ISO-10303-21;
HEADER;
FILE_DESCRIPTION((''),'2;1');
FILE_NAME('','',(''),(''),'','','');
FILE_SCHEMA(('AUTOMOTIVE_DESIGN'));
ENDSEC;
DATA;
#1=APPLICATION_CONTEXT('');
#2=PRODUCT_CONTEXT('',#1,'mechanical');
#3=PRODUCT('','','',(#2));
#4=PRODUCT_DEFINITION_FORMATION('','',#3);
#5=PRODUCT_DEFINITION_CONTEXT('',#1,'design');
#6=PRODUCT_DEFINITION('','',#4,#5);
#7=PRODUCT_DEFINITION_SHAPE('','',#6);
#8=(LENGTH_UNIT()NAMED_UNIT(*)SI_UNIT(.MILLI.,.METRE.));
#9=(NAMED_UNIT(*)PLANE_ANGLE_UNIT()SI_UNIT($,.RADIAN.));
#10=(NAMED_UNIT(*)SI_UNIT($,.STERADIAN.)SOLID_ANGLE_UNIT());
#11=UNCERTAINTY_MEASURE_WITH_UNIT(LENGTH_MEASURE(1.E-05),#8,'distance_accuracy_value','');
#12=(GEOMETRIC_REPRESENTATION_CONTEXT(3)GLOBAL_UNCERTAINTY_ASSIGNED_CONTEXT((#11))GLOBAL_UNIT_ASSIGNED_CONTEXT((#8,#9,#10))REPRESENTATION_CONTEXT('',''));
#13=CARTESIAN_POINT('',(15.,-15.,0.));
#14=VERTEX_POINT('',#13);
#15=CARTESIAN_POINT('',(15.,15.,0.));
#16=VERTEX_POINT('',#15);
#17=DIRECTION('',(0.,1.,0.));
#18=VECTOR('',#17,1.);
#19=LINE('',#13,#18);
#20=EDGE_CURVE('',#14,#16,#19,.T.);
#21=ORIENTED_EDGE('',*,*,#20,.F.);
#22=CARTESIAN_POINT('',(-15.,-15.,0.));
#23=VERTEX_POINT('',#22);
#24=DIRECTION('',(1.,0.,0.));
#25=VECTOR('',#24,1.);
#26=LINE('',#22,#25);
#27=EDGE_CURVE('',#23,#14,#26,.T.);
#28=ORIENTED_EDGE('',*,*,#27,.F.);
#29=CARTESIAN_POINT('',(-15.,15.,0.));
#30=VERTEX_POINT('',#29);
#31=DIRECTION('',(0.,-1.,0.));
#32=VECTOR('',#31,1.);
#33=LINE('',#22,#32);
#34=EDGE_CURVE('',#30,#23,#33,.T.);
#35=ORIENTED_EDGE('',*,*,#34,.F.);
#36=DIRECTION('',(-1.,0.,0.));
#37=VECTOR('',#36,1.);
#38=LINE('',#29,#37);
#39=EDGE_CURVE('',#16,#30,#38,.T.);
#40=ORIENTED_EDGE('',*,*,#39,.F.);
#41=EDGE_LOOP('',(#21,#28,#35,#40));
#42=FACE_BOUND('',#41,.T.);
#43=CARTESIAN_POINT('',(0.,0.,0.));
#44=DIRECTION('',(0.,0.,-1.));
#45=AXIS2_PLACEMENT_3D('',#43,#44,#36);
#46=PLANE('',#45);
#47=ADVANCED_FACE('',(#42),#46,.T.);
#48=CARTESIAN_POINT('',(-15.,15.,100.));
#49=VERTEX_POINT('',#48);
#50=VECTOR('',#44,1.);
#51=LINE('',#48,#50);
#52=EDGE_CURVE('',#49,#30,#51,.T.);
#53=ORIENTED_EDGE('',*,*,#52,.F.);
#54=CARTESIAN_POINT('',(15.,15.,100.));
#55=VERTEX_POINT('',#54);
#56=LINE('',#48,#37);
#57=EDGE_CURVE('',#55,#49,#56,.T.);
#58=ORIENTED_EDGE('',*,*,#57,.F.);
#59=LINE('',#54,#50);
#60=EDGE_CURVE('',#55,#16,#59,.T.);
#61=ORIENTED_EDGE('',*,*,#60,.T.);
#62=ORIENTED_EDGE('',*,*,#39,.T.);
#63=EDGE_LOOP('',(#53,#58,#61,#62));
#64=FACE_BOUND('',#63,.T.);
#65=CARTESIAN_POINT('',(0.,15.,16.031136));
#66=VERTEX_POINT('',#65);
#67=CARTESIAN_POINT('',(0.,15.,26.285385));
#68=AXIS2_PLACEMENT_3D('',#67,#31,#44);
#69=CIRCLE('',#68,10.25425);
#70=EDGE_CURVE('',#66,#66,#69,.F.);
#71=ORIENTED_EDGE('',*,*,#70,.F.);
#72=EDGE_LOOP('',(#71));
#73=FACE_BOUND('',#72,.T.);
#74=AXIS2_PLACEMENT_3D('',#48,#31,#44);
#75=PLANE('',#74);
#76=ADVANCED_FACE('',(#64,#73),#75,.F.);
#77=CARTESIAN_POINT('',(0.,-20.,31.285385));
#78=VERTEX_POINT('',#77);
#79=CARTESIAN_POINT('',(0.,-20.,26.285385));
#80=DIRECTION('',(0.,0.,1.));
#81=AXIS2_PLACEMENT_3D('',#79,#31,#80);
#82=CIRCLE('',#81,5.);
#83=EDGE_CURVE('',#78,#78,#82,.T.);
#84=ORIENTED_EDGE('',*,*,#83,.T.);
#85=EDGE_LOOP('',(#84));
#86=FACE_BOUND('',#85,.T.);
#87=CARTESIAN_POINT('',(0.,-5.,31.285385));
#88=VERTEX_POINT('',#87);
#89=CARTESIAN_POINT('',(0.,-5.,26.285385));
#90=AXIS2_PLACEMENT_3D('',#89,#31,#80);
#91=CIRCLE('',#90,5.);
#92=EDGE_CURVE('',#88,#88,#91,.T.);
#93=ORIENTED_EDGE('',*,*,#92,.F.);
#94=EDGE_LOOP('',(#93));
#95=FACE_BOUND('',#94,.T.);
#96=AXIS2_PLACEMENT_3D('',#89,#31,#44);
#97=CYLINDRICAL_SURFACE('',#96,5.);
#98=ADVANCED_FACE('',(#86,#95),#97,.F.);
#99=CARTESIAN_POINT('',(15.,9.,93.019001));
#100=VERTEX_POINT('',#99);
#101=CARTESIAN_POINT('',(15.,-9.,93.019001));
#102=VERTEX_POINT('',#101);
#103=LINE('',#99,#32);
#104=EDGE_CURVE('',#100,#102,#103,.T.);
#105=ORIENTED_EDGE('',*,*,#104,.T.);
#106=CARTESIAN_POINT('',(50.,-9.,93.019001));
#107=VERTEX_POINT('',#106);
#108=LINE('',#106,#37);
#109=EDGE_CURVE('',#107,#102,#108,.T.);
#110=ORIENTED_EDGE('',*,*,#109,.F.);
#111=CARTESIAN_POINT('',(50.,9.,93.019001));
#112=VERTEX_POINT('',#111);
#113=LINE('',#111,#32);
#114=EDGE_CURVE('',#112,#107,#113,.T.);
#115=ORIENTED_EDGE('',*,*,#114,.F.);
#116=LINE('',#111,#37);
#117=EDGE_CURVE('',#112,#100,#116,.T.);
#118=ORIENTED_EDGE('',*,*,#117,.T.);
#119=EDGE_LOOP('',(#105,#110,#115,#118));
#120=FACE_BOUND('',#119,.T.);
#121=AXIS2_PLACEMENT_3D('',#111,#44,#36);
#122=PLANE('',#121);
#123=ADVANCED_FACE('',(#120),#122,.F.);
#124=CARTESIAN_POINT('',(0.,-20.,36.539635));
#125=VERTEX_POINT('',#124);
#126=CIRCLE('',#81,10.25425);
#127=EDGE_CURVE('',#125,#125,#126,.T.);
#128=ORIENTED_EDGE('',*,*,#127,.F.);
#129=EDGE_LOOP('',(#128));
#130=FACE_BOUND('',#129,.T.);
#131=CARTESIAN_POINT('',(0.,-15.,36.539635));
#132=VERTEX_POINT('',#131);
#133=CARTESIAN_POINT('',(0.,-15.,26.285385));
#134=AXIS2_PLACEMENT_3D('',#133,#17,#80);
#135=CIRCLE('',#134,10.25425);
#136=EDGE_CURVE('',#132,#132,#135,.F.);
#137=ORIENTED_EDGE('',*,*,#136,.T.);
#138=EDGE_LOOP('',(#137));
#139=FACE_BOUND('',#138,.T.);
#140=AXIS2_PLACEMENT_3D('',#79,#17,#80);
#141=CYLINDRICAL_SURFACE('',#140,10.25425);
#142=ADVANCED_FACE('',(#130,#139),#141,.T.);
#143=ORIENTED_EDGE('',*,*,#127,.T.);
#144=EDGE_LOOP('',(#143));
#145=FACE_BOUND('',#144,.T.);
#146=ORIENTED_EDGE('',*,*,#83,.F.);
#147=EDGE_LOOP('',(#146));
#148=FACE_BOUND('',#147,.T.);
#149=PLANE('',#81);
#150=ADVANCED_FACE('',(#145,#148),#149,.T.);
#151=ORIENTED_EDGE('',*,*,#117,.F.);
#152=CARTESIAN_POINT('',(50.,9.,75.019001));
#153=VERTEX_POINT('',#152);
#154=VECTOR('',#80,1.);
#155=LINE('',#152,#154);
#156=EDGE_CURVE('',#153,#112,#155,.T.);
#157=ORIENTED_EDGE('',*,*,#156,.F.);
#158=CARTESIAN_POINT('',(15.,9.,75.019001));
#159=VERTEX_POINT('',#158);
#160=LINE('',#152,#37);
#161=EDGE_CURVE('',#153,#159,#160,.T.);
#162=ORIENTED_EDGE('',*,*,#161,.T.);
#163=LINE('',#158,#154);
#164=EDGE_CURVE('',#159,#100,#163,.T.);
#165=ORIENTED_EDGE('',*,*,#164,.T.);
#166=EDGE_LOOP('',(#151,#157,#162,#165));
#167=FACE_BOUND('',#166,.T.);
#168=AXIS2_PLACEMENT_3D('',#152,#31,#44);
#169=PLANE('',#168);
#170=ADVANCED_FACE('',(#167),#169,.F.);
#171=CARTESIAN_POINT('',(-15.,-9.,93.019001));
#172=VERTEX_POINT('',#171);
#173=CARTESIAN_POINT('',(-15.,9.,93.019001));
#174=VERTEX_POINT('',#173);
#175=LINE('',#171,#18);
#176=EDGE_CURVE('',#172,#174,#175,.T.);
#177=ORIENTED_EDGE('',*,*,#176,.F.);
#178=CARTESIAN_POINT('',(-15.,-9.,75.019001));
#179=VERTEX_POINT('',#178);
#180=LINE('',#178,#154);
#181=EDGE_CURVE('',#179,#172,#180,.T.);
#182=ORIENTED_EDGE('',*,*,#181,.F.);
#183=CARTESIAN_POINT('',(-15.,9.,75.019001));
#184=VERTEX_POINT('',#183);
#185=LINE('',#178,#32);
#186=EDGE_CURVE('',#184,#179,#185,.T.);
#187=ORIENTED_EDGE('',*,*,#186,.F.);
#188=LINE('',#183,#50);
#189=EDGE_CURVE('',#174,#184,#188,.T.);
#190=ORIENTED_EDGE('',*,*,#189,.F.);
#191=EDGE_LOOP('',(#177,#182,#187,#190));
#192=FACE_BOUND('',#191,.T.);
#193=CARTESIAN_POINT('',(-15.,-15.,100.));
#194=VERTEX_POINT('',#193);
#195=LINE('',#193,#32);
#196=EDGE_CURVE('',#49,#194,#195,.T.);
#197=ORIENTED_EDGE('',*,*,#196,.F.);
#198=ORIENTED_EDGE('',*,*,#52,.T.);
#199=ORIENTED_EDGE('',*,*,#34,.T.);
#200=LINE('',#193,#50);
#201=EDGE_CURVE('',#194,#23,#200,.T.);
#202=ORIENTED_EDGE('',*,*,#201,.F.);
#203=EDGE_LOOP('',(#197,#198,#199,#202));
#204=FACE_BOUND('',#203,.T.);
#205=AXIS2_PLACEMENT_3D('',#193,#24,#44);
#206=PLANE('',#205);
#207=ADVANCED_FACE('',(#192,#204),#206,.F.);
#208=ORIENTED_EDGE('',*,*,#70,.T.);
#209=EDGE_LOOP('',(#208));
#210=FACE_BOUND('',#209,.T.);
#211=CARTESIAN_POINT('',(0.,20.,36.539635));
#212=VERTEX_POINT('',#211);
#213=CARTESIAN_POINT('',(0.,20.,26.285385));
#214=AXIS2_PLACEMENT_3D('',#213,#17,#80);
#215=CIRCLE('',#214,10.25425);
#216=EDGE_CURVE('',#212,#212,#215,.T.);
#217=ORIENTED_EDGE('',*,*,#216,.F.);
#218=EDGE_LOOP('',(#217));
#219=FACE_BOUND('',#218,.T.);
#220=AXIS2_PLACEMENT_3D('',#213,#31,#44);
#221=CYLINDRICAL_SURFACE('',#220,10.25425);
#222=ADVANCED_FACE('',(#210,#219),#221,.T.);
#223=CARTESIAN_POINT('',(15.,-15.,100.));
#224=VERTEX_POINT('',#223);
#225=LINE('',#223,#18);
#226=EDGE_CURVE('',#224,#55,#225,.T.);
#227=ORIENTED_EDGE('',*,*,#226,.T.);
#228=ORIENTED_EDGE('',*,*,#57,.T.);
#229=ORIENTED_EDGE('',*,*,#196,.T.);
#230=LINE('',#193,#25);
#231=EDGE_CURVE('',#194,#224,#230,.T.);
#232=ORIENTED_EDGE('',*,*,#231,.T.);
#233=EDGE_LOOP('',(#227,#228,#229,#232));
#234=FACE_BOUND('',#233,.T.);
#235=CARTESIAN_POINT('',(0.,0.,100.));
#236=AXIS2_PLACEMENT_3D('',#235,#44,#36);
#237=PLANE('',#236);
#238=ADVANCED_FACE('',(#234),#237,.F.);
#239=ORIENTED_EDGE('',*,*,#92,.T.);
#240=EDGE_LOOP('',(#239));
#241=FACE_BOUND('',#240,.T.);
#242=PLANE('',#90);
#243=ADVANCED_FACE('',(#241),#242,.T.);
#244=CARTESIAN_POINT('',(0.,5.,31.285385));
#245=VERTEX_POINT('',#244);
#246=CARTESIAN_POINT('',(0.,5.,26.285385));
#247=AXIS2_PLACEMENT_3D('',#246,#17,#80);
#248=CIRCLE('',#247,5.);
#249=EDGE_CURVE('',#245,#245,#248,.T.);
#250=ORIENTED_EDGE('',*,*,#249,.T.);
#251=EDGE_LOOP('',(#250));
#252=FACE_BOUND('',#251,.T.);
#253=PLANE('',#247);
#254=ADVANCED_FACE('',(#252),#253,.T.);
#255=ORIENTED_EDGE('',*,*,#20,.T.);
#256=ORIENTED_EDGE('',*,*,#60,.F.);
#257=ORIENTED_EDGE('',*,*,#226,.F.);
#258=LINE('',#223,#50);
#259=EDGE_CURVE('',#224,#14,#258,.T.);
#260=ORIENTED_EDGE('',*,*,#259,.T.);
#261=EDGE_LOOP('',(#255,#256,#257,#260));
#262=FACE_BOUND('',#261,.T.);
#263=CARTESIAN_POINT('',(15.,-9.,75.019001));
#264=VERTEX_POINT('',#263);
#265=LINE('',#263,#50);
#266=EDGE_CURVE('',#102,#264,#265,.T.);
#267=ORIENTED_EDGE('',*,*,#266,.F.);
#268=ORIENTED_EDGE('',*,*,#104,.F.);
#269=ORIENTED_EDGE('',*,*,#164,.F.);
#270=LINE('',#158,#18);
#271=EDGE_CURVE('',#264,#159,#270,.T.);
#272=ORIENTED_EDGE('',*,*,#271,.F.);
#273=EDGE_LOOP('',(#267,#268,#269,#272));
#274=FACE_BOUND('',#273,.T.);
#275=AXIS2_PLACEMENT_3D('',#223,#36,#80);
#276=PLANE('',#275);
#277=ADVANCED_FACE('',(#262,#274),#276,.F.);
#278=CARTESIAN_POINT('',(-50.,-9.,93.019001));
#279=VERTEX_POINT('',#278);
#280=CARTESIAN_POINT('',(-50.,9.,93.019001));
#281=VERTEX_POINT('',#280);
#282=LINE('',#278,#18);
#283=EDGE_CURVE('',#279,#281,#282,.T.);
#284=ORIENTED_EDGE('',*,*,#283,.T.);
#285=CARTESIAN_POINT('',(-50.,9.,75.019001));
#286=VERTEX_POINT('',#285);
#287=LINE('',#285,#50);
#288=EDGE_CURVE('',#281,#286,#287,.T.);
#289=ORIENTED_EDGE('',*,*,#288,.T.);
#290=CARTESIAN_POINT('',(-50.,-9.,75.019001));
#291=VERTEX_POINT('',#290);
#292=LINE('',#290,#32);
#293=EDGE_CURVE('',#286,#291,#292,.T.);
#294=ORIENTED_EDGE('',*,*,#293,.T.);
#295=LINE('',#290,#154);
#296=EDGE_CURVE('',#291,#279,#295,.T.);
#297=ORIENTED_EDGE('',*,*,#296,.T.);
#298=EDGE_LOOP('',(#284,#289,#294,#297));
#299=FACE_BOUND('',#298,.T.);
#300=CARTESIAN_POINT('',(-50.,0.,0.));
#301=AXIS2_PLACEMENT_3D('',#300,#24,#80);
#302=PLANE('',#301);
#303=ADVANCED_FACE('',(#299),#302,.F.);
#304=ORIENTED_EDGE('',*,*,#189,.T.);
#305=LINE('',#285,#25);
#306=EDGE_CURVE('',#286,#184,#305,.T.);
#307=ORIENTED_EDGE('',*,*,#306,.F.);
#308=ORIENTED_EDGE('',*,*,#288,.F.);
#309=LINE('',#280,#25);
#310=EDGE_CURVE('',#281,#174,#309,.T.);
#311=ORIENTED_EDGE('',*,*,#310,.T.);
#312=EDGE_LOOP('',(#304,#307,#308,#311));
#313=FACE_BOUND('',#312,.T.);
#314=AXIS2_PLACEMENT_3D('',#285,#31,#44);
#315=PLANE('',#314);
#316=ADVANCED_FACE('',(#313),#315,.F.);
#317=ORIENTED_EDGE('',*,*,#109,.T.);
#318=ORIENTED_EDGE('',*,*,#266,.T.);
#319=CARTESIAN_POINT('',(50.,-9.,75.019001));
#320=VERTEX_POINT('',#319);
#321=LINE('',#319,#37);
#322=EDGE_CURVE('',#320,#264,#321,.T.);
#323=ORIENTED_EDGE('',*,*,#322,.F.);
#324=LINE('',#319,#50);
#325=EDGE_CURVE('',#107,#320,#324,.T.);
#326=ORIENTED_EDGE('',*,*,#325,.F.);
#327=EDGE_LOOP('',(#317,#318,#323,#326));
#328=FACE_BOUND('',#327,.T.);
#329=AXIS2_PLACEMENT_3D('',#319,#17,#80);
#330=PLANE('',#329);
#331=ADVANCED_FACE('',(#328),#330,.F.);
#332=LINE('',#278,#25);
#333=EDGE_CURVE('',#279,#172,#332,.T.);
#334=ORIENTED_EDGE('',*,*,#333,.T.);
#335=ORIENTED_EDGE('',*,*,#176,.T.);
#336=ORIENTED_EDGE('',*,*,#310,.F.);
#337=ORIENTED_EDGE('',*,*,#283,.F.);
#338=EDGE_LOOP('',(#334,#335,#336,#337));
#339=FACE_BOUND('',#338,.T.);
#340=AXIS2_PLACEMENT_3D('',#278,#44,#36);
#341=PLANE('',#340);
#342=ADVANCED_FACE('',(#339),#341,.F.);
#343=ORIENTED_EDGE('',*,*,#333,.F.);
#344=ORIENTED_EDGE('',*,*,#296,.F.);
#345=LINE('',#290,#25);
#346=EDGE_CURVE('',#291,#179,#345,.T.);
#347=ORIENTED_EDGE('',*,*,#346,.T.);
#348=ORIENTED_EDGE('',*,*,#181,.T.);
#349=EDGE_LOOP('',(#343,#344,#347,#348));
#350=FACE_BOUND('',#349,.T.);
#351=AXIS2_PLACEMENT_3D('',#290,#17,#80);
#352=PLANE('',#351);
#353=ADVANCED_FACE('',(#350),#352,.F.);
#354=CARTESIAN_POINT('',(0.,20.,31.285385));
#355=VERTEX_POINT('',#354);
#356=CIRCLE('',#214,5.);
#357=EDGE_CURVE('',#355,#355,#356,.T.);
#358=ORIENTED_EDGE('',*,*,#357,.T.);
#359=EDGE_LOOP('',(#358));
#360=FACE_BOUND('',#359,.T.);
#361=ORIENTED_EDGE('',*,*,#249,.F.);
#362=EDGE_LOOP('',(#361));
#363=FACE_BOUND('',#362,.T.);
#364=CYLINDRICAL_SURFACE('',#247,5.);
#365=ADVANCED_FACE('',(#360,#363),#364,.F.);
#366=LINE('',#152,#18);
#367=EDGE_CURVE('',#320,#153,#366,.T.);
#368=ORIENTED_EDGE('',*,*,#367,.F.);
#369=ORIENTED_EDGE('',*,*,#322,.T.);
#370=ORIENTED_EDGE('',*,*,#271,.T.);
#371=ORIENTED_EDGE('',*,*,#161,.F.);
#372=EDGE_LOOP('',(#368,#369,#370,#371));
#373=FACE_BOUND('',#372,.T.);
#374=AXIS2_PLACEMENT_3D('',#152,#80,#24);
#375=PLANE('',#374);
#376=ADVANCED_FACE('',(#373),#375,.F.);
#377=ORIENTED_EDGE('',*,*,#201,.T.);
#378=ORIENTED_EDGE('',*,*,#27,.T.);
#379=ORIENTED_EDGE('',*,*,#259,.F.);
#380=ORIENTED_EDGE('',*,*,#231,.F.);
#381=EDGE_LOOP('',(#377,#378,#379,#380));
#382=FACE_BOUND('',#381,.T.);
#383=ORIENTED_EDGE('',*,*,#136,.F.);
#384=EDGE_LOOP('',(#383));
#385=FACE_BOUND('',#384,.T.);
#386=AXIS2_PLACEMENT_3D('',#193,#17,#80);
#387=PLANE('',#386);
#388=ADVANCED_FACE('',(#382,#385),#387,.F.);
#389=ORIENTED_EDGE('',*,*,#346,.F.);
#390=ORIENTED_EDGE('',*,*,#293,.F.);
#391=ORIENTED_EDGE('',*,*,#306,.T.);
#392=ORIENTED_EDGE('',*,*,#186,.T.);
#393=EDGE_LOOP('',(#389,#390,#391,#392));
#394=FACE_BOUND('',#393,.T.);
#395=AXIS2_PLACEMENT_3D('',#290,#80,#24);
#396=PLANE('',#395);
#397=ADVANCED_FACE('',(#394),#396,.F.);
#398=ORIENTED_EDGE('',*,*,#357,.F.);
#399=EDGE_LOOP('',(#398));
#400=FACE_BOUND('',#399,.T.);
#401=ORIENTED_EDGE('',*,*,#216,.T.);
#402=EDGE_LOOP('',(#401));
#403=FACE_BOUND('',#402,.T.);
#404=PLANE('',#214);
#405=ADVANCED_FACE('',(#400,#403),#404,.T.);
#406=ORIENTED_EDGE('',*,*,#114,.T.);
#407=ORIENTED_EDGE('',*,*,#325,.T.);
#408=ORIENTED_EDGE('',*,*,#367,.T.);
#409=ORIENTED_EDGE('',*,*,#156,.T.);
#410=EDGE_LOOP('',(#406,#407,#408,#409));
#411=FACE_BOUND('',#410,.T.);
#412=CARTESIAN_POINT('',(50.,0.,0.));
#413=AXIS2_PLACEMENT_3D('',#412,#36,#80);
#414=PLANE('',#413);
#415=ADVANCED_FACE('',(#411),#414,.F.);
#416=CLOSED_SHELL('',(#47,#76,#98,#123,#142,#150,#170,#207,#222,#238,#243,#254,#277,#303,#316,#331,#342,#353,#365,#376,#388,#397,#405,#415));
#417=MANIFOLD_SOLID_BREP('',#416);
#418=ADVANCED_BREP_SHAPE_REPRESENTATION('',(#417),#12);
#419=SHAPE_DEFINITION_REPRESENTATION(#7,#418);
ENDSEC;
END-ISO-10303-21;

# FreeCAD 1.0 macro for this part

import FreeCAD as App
import Part
import Sketcher
Q = App.Units.Quantity

doc = App.newDocument("Part")
body = doc.addObject("PartDesign::Body", "Body")

# Sketch on XY plane
sketch1 = body.newObject("Sketcher::SketchObject", "Sketch")
sketch1.AttachmentSupport = (doc.getObject("XY_Plane"), [""])
sketch1.MapMode = "FlatFace"
sketch1.addGeometry(Part.LineSegment(App.Vector(-15, 15, 0), App.Vector(-15, -15, 0)), False)
sketch1.addGeometry(Part.LineSegment(App.Vector(-15, -15, 0), App.Vector(15, -15, 0)), False)
sketch1.addGeometry(Part.LineSegment(App.Vector(15, -15, 0), App.Vector(15, 15, 0)), False)
sketch1.addGeometry(Part.LineSegment(App.Vector(15, 15, 0), App.Vector(-15, 15, 0)), False)
sketch1.addConstraint(Sketcher.Constraint("Coincident", 0, 2, 1, 1))
sketch1.addConstraint(Sketcher.Constraint("Coincident", 1, 2, 2, 1))
sketch1.addConstraint(Sketcher.Constraint("Coincident", 2, 2, 3, 1))
sketch1.addConstraint(Sketcher.Constraint("Coincident", 3, 2, 0, 1))
sketch1.addConstraint(Sketcher.Constraint("Vertical", 0))
sketch1.addConstraint(Sketcher.Constraint("Horizontal", 1))
sketch1.addConstraint(Sketcher.Constraint("Vertical", 2))
sketch1.addConstraint(Sketcher.Constraint("Horizontal", 3))
sketch1.addConstraint(Sketcher.Constraint("Symmetric", 0, 2, 2, 2, -1, 1))
sketch1.addConstraint(Sketcher.Constraint("Equal", 3, 0))
sketch1.addConstraint(Sketcher.Constraint("DistanceX", 1, 1, 1, 2, Q("30 mm")))
pad1 = body.newObject("PartDesign::Pad", "Pad")
pad1.Profile = sketch1
pad1.Length = 100

# Sketch on YZ plane
sketch2 = body.newObject("Sketcher::SketchObject", "Sketch001")
sketch2.AttachmentSupport = (doc.getObject("YZ_Plane"), [""])
sketch2.MapMode = "FlatFace"
sketch2.AttachmentOffset = App.Placement(App.Vector(0, 0, 15), App.Rotation())
sketch2.addGeometry(Part.LineSegment(App.Vector(9, 93, 0), App.Vector(-9, 93, 0)), False)
sketch2.addGeometry(Part.LineSegment(App.Vector(-9, 93, 0), App.Vector(-9, 75, 0)), False)
sketch2.addGeometry(Part.LineSegment(App.Vector(-9, 75, 0), App.Vector(9, 75, 0)), False)
sketch2.addGeometry(Part.LineSegment(App.Vector(9, 75, 0), App.Vector(9, 93, 0)), False)
sketch2.addConstraint(Sketcher.Constraint("Coincident", 0, 2, 1, 1))
sketch2.addConstraint(Sketcher.Constraint("Coincident", 1, 2, 2, 1))
sketch2.addConstraint(Sketcher.Constraint("Coincident", 2, 2, 3, 1))
sketch2.addConstraint(Sketcher.Constraint("Coincident", 3, 2, 0, 1))
sketch2.addConstraint(Sketcher.Constraint("Horizontal", 0))
sketch2.addConstraint(Sketcher.Constraint("Vertical", 1))
sketch2.addConstraint(Sketcher.Constraint("Horizontal", 2))
sketch2.addConstraint(Sketcher.Constraint("Vertical", 3))
sketch2.addConstraint(Sketcher.Constraint("Equal", 2, 1))
sketch2.addConstraint(Sketcher.Constraint("DistanceX", 0, 2, 0, 1, Q("18 mm")))
sketch2.addConstraint(Sketcher.Constraint("DistanceX", 0, 2, -1, 1, Q("9 mm")))
sketch2.addConstraint(Sketcher.Constraint("DistanceY", -1, 1, 0, 2, Q("93.019001 mm")))
pad2 = body.newObject("PartDesign::Pad", "Pad001")
pad2.Profile = sketch2
pad2.Length = 35
doc.recompute()

polarpattern = body.newObject("PartDesign::PolarPattern", "PolarPattern")
polarpattern.Originals = [pad2]
polarpattern.Axis = (doc.getObject("Z_Axis"), [""])
polarpattern.Angle = 360
polarpattern.Occurrences = 2
body.Tip = polarpattern

# Sketch on XZ plane
sketch3 = body.newObject("Sketcher::SketchObject", "Sketch002")
sketch3.AttachmentSupport = (doc.getObject("XZ_Plane"), [""])
sketch3.MapMode = "FlatFace"
sketch3.AttachmentOffset = App.Placement(App.Vector(0, 0, -15), App.Rotation())
sketch3.addGeometry(Part.Circle(App.Vector(0, 26, 0), App.Vector(0, 0, 1), 10), False)
sketch3.addConstraint(Sketcher.Constraint("PointOnObject", 0, 3, -2))
sketch3.addConstraint(Sketcher.Constraint("Diameter", 0, Q("20.508499 mm")))
sketch3.addConstraint(Sketcher.Constraint("DistanceY", -1, 1, 0, 3, Q("26.285385 mm")))
pad3 = body.newObject("PartDesign::Pad", "Pad002")
pad3.Profile = sketch3
pad3.Length = 5
pad3.Reversed = True

# Sketch on XZ plane
sketch4 = body.newObject("Sketcher::SketchObject", "Sketch003")
sketch4.AttachmentSupport = (doc.getObject("XZ_Plane"), [""])
sketch4.MapMode = "FlatFace"
sketch4.AttachmentOffset = App.Placement(App.Vector(0, 0, -20), App.Rotation())
sketch4.addGeometry(Part.Circle(App.Vector(0, 26, 0), App.Vector(0, 0, 1), 5), False)
sketch4.addConstraint(Sketcher.Constraint("PointOnObject", 0, 3, -2))
sketch4.addConstraint(Sketcher.Constraint("Diameter", 0, Q("10 mm")))
sketch4.addConstraint(Sketcher.Constraint("DistanceY", -1, 1, 0, 3, Q("26.285385 mm")))
pocket1 = body.newObject("PartDesign::Pocket", "Pocket")
pocket1.Profile = sketch4
pocket1.Length = 15
pocket1.Reversed = True
doc.recompute()

polarpattern2 = body.newObject("PartDesign::PolarPattern", "PolarPattern001")
polarpattern2.Originals = [pad3]
polarpattern2.Axis = (doc.getObject("Z_Axis"), [""])
polarpattern2.Angle = 360
polarpattern2.Occurrences = 2
body.Tip = polarpattern2
doc.recompute()

polarpattern3 = body.newObject("PartDesign::PolarPattern", "PolarPattern002")
polarpattern3.Originals = [pocket1]
polarpattern3.Axis = (doc.getObject("Z_Axis"), [""])
polarpattern3.Angle = 360
polarpattern3.Occurrences = 2
body.Tip = polarpattern3

doc.recompute()
